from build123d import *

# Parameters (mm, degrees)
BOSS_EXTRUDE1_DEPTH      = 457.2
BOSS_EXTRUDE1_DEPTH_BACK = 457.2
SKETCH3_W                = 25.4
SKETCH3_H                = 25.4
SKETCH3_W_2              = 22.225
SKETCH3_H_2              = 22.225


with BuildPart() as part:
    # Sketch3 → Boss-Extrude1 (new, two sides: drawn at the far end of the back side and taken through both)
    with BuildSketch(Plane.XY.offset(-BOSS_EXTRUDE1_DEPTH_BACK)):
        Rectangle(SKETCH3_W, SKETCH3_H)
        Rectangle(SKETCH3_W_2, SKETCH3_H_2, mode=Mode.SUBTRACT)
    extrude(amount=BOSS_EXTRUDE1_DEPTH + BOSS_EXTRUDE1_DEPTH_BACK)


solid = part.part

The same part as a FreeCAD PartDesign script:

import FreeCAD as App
import Part
import Sketcher
Q = App.Units.Quantity


def add_polygon(sketch, points):
    """Adds a closed chain of lines whose ends are joined by coincident constraints."""
    first, n = sketch.GeometryCount, len(points)
    for a, b in zip(points, points[1:] + points[:1]):
        sketch.addGeometry(Part.LineSegment(App.Vector(*a, 0), App.Vector(*b, 0)), False)
    for i in range(n):
        sketch.addConstraint(Sketcher.Constraint("Coincident", first + i, 2, first + (i + 1) % n, 1))

doc = App.newDocument("Part")
body = doc.addObject("PartDesign::Body", "Body")

# Sketch on XY plane
sketch1 = body.newObject("Sketcher::SketchObject", "Sketch")
sketch1.AttachmentSupport = (doc.getObject("XY_Plane"), [""])
sketch1.MapMode = "FlatFace"
add_polygon(sketch1, [(-13, 13), (-13, -13), (13, -13), (13, 13)])  # lines 0-3
add_polygon(sketch1, [(11, -11), (-11, -11), (-11, 11), (11, 11)])  # lines 4-7
sketch1.addConstraint([
    Sketcher.Constraint("Vertical", 0),
    Sketcher.Constraint("Horizontal", 1),
    Sketcher.Constraint("Vertical", 2),
    Sketcher.Constraint("Horizontal", 3),
    Sketcher.Constraint("Horizontal", 4),
    Sketcher.Constraint("Vertical", 5),
    Sketcher.Constraint("Horizontal", 6),
    Sketcher.Constraint("Vertical", 7),
    Sketcher.Constraint("Symmetric", 0, 2, 2, 2, -1, 1),
    Sketcher.Constraint("Symmetric", 4, 2, 6, 2, -1, 1),
    Sketcher.Constraint("Equal", 3, 0),
    Sketcher.Constraint("Equal", 6, 5),
    Sketcher.Constraint("DistanceX", 1, 1, 1, 2, Q("1 in")),
    Sketcher.Constraint("DistanceX", 4, 2, 4, 1, Q("0.875 in")),
])
pad1 = body.newObject("PartDesign::Pad", "Pad")
pad1.Profile = sketch1
pad1.Type = "TwoLengths"
pad1.Length = Q("18 in")
pad1.Length2 = Q("18 in")

doc.recompute()
